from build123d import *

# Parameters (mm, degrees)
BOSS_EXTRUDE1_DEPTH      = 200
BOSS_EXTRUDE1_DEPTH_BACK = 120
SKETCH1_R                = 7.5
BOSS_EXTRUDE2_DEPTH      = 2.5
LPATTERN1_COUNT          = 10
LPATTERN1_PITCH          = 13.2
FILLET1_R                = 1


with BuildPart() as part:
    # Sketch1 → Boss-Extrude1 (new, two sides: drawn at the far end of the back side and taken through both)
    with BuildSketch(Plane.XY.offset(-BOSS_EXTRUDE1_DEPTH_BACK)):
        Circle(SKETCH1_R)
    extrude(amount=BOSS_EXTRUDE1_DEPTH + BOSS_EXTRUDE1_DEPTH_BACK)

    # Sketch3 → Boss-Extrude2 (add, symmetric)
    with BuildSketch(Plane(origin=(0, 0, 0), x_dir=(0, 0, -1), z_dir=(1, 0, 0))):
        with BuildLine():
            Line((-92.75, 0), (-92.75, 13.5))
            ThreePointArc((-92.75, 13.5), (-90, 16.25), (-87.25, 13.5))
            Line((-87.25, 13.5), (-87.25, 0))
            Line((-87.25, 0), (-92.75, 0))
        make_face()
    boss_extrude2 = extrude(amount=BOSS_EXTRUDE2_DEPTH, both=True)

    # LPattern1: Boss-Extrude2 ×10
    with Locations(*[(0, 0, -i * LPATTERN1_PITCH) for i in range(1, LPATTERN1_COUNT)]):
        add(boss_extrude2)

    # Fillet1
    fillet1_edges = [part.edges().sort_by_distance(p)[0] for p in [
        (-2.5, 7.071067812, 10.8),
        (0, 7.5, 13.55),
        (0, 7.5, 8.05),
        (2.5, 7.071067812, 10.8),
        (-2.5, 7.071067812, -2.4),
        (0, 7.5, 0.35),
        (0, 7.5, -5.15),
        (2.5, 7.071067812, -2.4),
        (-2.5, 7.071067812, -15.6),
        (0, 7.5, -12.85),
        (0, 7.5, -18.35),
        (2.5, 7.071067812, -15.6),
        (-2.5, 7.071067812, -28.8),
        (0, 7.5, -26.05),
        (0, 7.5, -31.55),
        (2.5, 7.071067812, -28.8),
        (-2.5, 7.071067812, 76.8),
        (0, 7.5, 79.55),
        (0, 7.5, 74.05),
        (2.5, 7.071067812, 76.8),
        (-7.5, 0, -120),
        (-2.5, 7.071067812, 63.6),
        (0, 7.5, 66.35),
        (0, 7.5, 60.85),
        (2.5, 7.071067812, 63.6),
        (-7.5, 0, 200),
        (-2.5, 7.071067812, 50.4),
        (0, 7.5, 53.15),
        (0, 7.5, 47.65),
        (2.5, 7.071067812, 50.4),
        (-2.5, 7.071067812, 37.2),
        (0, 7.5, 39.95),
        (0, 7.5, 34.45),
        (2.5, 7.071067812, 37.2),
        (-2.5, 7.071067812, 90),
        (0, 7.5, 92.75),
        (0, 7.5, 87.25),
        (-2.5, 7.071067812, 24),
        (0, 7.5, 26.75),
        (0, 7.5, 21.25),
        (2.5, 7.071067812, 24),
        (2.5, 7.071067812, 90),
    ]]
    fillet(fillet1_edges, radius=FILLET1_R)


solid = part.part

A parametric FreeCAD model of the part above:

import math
import FreeCAD as App
import Part
import Sketcher
from FreeCAD import Vector
Q = App.Units.Quantity


def edges_at(feature, points):
    """Names of the edges that pass closest to the given points."""
    edges = feature.Shape.Edges
    near = lambda p: min(range(len(edges)), key=lambda i: edges[i].distToShape(Part.Vertex(*p))[0])
    return sorted({f"Edge{near(p) + 1}" for p in points})

doc = App.newDocument("Part")
body = doc.addObject("PartDesign::Body", "Body")

# Sketch on XY plane
sketch1 = body.newObject("Sketcher::SketchObject", "Sketch")
sketch1.AttachmentSupport = (doc.getObject("XY_Plane"), [""])
sketch1.MapMode = "FlatFace"
sketch1.addGeometry(Part.Circle(Vector(0, 0, 0), Vector(0, 0, 1), 8), False)
sketch1.addConstraint([
    Sketcher.Constraint("Coincident", 0, 3, -1, 1),
    Sketcher.Constraint("Diameter", 0, Q("15 mm")),
])
pad1 = body.newObject("PartDesign::Pad", "Pad")
pad1.Profile = sketch1
pad1.Type = "TwoLengths"
pad1.Length = 200
pad1.Length2 = 120

# Sketch on YZ plane
sketch2 = body.newObject("Sketcher::SketchObject", "Sketch001")
sketch2.AttachmentSupport = (doc.getObject("YZ_Plane"), [""])
sketch2.MapMode = "FlatFace"
sketch2.addGeometry([
    Part.LineSegment(Vector(13.5, 92.8, 0), Vector(0, 92.8, 0)),
    Part.LineSegment(Vector(0, 92.8, 0), Vector(0, 87.2, 0)),
    Part.LineSegment(Vector(0, 87.2, 0), Vector(13.5, 87.2, 0)),
    Part.ArcOfCircle(Part.Circle(Vector(13.5, 90, 0), Vector(0, 0, 1), 2.8), math.radians(-90), math.radians(90)),
], False)
sketch2.addConstraint([
    Sketcher.Constraint("Coincident", 0, 2, 1, 1),
    Sketcher.Constraint("Coincident", 1, 2, 2, 1),
    Sketcher.Constraint("Tangent", 2, 2, 3, 1),
    Sketcher.Constraint("Tangent", 3, 2, 0, 1),
    Sketcher.Constraint("Horizontal", 0),
    Sketcher.Constraint("Vertical", 1),
    Sketcher.Constraint("Horizontal", 2),
    Sketcher.Constraint("PointOnObject", 0, 2, -2),
    Sketcher.Constraint("Radius", 3, Q("2.75 mm")),
    Sketcher.Constraint("DistanceX", 0, 2, 0, 1, Q("13.5 mm")),
    Sketcher.Constraint("DistanceY", -1, 1, 3, 3, Q("90 mm")),
])
pad2 = body.newObject("PartDesign::Pad", "Pad001")
pad2.Profile = sketch2
pad2.Length = 5
pad2.Midplane = True
doc.recompute()

linearpattern = body.newObject("PartDesign::LinearPattern", "LinearPattern")
linearpattern.Originals = [pad2]
linearpattern.Direction = (doc.getObject("Z_Axis"), [""])
linearpattern.Mode = "offset"
linearpattern.Offset = 13.2
linearpattern.Occurrences = 10
linearpattern.Reversed = True
body.Tip = linearpattern
doc.recompute()

fillet = body.newObject("PartDesign::Fillet", "Fillet")
fillet.Base = (linearpattern, edges_at(linearpattern, [
    (-2.5, 7.071, 10.8),
    (0, 7.5, 13.55),
    (0, 7.5, 8.05),
    (2.5, 7.071, 10.8),
    (-2.5, 7.071, -2.4),
    (0, 7.5, 0.35),
    (0, 7.5, -5.15),
    (2.5, 7.071, -2.4),
    (-2.5, 7.071, -15.6),
    (0, 7.5, -12.85),
    (0, 7.5, -18.35),
    (2.5, 7.071, -15.6),
    (-2.5, 7.071, -28.8),
    (0, 7.5, -26.05),
    (0, 7.5, -31.55),
    (2.5, 7.071, -28.8),
    (-2.5, 7.071, 76.8),
    (0, 7.5, 79.55),
    (0, 7.5, 74.05),
    (2.5, 7.071, 76.8),
    (-7.5, 0, -120),
    (-2.5, 7.071, 63.6),
    (0, 7.5, 66.35),
    (0, 7.5, 60.85),
    (2.5, 7.071, 63.6),
    (-7.5, 0, 200),
    (-2.5, 7.071, 50.4),
    (0, 7.5, 53.15),
    (0, 7.5, 47.65),
    (2.5, 7.071, 50.4),
    (-2.5, 7.071, 37.2),
    (0, 7.5, 39.95),
    (0, 7.5, 34.45),
    (2.5, 7.071, 37.2),
    (-2.5, 7.071, 90),
    (0, 7.5, 92.75),
    (0, 7.5, 87.25),
    (-2.5, 7.071, 24),
    (0, 7.5, 26.75),
    (0, 7.5, 21.25),
    (2.5, 7.071, 24),
    (2.5, 7.071, 90),
]))
fillet.Radius = 1

doc.recompute()
